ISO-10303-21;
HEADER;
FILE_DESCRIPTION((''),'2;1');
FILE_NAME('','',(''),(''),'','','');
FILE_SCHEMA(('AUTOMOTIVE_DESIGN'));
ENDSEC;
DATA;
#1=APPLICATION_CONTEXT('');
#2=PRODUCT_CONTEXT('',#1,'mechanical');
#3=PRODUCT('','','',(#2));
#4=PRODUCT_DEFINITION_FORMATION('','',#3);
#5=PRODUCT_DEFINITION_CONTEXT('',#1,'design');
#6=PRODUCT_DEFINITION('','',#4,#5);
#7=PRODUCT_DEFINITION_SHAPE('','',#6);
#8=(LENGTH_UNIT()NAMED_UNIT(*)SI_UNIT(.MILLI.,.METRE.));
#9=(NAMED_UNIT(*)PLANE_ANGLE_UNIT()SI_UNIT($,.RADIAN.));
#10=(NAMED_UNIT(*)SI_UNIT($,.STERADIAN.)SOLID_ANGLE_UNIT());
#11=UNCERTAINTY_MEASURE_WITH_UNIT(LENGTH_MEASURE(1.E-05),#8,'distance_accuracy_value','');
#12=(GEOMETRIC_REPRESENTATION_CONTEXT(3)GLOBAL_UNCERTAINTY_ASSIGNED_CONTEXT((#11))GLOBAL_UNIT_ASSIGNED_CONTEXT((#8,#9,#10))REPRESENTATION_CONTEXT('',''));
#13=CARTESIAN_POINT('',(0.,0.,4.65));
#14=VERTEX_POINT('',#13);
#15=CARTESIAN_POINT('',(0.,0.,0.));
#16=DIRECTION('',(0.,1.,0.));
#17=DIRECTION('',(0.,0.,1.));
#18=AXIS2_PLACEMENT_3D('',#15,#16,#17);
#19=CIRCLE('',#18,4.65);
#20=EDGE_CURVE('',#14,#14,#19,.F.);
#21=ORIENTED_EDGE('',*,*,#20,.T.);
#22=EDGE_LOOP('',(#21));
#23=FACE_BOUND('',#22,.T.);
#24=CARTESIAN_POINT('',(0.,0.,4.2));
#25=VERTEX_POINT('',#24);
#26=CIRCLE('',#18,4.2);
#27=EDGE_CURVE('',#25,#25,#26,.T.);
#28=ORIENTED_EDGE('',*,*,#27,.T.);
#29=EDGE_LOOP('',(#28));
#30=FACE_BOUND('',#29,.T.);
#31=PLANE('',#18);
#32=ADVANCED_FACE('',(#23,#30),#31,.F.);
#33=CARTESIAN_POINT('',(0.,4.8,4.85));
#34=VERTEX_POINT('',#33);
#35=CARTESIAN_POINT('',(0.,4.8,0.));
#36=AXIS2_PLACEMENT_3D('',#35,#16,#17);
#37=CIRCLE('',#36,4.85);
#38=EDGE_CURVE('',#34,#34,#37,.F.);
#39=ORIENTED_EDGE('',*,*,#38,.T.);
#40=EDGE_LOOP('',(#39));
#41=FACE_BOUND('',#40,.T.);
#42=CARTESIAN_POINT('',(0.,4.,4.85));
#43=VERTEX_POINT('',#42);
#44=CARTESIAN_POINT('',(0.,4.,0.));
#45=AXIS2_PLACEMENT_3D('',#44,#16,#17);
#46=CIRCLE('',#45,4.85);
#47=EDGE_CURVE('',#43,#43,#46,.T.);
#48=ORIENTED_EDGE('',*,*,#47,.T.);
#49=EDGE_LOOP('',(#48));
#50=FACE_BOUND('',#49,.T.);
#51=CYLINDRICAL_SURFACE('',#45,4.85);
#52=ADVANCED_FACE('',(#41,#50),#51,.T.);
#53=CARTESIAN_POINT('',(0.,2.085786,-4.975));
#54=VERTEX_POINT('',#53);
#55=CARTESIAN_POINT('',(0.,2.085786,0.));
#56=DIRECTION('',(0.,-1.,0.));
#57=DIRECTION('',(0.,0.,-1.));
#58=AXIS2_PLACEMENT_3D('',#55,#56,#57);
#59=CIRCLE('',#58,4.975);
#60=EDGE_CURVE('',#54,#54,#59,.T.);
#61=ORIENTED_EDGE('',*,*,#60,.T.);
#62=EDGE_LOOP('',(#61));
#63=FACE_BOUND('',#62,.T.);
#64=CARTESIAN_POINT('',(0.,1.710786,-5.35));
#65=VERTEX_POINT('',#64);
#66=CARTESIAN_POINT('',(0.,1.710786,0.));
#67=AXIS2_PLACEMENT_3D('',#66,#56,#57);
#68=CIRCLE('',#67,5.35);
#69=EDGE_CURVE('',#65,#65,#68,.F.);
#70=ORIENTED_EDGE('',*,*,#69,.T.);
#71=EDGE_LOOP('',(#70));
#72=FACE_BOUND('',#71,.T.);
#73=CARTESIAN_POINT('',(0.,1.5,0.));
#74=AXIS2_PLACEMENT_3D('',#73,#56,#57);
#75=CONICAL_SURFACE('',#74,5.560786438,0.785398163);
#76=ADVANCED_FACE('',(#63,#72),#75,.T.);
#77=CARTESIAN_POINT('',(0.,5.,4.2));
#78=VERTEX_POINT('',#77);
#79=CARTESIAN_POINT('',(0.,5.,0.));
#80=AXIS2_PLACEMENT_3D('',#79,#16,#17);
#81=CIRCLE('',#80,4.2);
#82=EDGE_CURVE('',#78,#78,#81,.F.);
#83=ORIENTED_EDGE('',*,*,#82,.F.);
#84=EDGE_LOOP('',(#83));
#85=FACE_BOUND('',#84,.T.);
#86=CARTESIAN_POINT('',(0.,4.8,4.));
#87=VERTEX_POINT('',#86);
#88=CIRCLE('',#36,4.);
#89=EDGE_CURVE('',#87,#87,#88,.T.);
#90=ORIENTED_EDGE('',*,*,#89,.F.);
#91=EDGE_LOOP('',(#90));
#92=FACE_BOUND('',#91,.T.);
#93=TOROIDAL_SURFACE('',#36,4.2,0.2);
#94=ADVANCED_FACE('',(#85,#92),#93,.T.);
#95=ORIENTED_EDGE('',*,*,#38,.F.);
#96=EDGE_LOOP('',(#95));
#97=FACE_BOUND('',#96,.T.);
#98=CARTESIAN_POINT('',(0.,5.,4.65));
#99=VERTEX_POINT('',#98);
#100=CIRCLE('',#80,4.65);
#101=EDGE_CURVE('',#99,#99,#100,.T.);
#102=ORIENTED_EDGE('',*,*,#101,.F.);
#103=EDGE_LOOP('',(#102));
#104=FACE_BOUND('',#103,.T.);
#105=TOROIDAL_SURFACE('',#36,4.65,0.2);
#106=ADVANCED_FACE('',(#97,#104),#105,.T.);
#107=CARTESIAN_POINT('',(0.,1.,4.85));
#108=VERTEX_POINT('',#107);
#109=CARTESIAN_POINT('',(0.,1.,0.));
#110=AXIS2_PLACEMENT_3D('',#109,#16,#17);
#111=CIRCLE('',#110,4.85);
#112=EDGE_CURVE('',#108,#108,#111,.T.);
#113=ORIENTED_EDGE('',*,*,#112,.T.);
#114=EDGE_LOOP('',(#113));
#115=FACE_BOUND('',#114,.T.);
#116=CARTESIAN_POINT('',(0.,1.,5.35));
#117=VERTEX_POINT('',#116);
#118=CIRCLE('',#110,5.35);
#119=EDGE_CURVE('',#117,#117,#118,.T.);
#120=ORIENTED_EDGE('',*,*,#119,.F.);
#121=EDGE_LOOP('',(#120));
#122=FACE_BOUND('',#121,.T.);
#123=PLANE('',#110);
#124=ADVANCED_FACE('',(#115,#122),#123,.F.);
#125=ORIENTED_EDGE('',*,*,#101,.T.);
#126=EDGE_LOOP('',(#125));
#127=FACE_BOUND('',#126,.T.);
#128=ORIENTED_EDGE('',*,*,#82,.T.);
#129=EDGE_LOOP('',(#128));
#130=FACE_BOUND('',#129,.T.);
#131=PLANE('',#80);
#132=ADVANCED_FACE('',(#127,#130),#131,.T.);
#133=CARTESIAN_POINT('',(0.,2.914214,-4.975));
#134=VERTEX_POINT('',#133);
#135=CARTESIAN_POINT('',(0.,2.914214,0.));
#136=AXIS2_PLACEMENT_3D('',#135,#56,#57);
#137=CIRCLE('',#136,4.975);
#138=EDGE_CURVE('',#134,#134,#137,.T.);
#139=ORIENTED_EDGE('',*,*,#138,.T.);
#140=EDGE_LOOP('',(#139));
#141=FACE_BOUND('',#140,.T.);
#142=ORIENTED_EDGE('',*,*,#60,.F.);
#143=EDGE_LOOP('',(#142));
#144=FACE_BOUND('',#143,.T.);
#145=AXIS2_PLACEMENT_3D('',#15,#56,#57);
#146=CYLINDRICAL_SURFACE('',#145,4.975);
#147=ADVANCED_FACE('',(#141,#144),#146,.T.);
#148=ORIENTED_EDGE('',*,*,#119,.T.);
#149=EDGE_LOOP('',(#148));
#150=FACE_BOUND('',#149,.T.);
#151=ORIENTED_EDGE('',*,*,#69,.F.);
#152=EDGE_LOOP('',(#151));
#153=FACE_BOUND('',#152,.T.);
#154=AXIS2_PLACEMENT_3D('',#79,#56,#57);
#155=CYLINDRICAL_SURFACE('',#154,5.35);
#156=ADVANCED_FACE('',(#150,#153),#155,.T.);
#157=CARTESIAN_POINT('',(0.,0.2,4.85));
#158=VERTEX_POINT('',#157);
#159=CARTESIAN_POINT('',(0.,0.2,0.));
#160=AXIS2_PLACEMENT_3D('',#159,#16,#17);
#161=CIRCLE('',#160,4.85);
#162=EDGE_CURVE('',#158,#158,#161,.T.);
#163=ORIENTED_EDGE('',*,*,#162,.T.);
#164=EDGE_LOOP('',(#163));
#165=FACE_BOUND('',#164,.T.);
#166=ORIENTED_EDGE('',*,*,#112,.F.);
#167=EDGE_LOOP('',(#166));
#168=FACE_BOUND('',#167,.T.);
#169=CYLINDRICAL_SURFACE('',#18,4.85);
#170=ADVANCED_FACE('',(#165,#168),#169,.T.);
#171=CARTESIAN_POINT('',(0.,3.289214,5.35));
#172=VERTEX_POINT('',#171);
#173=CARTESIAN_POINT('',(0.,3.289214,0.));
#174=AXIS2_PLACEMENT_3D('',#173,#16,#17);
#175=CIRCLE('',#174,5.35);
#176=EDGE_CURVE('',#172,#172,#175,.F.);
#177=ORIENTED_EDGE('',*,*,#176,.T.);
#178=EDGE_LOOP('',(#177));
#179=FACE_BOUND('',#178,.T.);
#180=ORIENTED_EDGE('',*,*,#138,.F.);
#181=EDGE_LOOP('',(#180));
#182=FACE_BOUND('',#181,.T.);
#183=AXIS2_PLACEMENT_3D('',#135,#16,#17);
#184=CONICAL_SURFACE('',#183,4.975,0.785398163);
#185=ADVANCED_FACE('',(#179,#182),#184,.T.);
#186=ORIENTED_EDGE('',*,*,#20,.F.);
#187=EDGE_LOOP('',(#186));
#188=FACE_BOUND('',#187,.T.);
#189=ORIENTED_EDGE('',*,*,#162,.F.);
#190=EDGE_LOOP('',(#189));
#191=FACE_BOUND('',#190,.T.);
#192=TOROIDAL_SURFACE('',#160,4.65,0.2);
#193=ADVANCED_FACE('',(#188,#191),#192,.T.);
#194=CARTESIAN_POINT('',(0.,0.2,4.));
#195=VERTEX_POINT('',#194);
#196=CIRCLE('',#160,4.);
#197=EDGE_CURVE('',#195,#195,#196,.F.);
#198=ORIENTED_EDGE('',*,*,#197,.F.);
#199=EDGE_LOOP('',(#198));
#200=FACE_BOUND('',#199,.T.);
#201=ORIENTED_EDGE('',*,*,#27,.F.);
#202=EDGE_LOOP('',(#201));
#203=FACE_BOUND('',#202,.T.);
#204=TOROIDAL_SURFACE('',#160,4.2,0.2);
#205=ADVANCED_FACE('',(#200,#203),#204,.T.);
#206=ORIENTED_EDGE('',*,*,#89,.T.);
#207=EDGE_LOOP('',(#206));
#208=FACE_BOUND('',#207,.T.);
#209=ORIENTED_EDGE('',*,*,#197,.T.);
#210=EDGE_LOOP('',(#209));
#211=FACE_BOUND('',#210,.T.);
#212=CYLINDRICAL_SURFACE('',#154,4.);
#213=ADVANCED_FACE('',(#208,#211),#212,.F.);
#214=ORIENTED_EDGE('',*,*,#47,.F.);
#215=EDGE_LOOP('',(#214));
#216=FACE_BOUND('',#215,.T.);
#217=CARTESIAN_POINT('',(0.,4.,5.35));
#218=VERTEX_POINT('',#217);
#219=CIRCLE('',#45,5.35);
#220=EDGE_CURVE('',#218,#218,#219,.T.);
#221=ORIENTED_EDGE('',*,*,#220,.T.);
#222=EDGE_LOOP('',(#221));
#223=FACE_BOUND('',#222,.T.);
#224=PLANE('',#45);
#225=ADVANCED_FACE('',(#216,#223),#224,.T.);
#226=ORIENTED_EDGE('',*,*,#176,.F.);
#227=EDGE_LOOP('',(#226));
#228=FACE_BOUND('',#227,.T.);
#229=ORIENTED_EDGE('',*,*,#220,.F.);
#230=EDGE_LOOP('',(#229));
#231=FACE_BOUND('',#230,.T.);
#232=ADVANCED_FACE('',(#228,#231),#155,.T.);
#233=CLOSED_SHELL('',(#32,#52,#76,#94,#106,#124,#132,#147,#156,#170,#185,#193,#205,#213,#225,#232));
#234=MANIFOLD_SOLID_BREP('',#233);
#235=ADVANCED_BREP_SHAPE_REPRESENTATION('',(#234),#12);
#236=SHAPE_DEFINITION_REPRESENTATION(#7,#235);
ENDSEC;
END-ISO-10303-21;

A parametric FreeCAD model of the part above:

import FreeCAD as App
import Part
import Sketcher
from FreeCAD import Vector
Q = App.Units.Quantity


def edges_at(feature, points):
    """Names of the edges that pass closest to the given points."""
    edges = feature.Shape.Edges
    near = lambda p: min(range(len(edges)), key=lambda i: edges[i].distToShape(Part.Vertex(*p))[0])
    return sorted({f"Edge{near(p) + 1}" for p in points})


def add_polygon(sketch, points):
    """Adds a closed chain of lines whose ends are joined by coincident constraints."""
    first, n = sketch.GeometryCount, len(points)
    for a, b in zip(points, points[1:] + points[:1]):
        sketch.addGeometry(Part.LineSegment(App.Vector(*a, 0), App.Vector(*b, 0)), False)
    for i in range(n):
        sketch.addConstraint(Sketcher.Constraint("Coincident", first + i, 2, first + (i + 1) % n, 1))

doc = App.newDocument("Part")
body = doc.addObject("PartDesign::Body", "Body")

sketch1 = body.newObject("Sketcher::SketchObject", "Sketch")
sketch1.AttachmentSupport = (doc.getObject("XZ_Plane"), [""])
sketch1.MapMode = "FlatFace"
sketch1.addGeometry([
    Part.Circle(Vector(0, 0, 0), Vector(0, 0, 1), 5.3),
    Part.Circle(Vector(0, 0, 0), Vector(0, 0, 1), 4),
], False)
sketch1.addConstraint([
    Sketcher.Constraint("Coincident", 0, 3, -1, 1),
    Sketcher.Constraint("Coincident", 1, 3, -1, 1),
    Sketcher.Constraint("Diameter", 1, Q("8 mm")),
    Sketcher.Constraint("Diameter", 0, Q("10.7 mm")),
])
pad1 = body.newObject("PartDesign::Pad", "Pad")
pad1.Profile = sketch1
pad1.Length = 5
pad1.Reversed = True

sketch2 = body.newObject("Sketcher::SketchObject", "Sketch001")
sketch2.AttachmentSupport = (doc.getObject("XZ_Plane"), [""])
sketch2.MapMode = "FlatFace"
sketch2.AttachmentOffset = App.Placement(Vector(0, 0, -5), App.Rotation())
sketch2.addGeometry([
    Part.Circle(Vector(0, 0, 0), Vector(0, 0, 1), 5.3),
    Part.Circle(Vector(0, 0, 0), Vector(0, 0, 1), 4.8),
], False)
sketch2.addConstraint([
    Sketcher.Constraint("Coincident", 0, 3, -1, 1),
    Sketcher.Constraint("Coincident", 1, 3, -1, 1),
    Sketcher.Constraint("Diameter", 0, Q("10.7 mm")),
    Sketcher.Constraint("Diameter", 1, Q("9.7 mm")),
])
pocket1 = body.newObject("PartDesign::Pocket", "Pocket")
pocket1.Profile = sketch2
pocket1.Length = 1
pocket1.Reversed = True
doc.recompute()

linearpattern = body.newObject("PartDesign::LinearPattern", "LinearPattern")
linearpattern.Originals = [pocket1]
linearpattern.Direction = (doc.getObject("Y_Axis"), [""])
linearpattern.Mode = "offset"
linearpattern.Offset = 4
linearpattern.Occurrences = 2
linearpattern.Reversed = True
body.Tip = linearpattern

sketch3 = body.newObject("Sketcher::SketchObject", "Sketch002")
sketch3.AttachmentSupport = (doc.getObject("XY_Plane"), [""])
sketch3.MapMode = "FlatFace"
add_polygon(sketch3, [(-5, 2.9), (-5.6, 3.5), (-5.6, 1.5), (-5, 2.1)])
sketch3.addConstraint([
    Sketcher.Constraint("Vertical", 1),
    Sketcher.Constraint("Vertical", 3),
    Sketcher.Constraint("Perpendicular", 0, 2),
    Sketcher.Constraint("Equal", 0, 2),
    Sketcher.Constraint("DistanceY", 1, 2, 1, 1, Q("2 mm")),
    Sketcher.Constraint("DistanceY", -1, 1, 0, 2, Q("3.5 mm")),
    Sketcher.Constraint("DistanceX", 2, 2, -1, 1, Q("4.975 mm")),
    Sketcher.Constraint("DistanceY", 3, 1, 3, 2, Q("0.828427 mm")),
])
groove = body.newObject("PartDesign::Groove", "Groove")
groove.Profile = sketch3
groove.ReferenceAxis = (sketch3, ["V_Axis"])
groove.Angle = 360
doc.recompute()

fillet = body.newObject("PartDesign::Fillet", "Fillet")
fillet.Base = (groove, edges_at(groove, [
    (-4.85, 5, 0),
    (-4.85, 0, 0),
    (-4, 0, 0),
    (-4, 5, 0),
]))
fillet.Radius = 0.2

doc.recompute()
